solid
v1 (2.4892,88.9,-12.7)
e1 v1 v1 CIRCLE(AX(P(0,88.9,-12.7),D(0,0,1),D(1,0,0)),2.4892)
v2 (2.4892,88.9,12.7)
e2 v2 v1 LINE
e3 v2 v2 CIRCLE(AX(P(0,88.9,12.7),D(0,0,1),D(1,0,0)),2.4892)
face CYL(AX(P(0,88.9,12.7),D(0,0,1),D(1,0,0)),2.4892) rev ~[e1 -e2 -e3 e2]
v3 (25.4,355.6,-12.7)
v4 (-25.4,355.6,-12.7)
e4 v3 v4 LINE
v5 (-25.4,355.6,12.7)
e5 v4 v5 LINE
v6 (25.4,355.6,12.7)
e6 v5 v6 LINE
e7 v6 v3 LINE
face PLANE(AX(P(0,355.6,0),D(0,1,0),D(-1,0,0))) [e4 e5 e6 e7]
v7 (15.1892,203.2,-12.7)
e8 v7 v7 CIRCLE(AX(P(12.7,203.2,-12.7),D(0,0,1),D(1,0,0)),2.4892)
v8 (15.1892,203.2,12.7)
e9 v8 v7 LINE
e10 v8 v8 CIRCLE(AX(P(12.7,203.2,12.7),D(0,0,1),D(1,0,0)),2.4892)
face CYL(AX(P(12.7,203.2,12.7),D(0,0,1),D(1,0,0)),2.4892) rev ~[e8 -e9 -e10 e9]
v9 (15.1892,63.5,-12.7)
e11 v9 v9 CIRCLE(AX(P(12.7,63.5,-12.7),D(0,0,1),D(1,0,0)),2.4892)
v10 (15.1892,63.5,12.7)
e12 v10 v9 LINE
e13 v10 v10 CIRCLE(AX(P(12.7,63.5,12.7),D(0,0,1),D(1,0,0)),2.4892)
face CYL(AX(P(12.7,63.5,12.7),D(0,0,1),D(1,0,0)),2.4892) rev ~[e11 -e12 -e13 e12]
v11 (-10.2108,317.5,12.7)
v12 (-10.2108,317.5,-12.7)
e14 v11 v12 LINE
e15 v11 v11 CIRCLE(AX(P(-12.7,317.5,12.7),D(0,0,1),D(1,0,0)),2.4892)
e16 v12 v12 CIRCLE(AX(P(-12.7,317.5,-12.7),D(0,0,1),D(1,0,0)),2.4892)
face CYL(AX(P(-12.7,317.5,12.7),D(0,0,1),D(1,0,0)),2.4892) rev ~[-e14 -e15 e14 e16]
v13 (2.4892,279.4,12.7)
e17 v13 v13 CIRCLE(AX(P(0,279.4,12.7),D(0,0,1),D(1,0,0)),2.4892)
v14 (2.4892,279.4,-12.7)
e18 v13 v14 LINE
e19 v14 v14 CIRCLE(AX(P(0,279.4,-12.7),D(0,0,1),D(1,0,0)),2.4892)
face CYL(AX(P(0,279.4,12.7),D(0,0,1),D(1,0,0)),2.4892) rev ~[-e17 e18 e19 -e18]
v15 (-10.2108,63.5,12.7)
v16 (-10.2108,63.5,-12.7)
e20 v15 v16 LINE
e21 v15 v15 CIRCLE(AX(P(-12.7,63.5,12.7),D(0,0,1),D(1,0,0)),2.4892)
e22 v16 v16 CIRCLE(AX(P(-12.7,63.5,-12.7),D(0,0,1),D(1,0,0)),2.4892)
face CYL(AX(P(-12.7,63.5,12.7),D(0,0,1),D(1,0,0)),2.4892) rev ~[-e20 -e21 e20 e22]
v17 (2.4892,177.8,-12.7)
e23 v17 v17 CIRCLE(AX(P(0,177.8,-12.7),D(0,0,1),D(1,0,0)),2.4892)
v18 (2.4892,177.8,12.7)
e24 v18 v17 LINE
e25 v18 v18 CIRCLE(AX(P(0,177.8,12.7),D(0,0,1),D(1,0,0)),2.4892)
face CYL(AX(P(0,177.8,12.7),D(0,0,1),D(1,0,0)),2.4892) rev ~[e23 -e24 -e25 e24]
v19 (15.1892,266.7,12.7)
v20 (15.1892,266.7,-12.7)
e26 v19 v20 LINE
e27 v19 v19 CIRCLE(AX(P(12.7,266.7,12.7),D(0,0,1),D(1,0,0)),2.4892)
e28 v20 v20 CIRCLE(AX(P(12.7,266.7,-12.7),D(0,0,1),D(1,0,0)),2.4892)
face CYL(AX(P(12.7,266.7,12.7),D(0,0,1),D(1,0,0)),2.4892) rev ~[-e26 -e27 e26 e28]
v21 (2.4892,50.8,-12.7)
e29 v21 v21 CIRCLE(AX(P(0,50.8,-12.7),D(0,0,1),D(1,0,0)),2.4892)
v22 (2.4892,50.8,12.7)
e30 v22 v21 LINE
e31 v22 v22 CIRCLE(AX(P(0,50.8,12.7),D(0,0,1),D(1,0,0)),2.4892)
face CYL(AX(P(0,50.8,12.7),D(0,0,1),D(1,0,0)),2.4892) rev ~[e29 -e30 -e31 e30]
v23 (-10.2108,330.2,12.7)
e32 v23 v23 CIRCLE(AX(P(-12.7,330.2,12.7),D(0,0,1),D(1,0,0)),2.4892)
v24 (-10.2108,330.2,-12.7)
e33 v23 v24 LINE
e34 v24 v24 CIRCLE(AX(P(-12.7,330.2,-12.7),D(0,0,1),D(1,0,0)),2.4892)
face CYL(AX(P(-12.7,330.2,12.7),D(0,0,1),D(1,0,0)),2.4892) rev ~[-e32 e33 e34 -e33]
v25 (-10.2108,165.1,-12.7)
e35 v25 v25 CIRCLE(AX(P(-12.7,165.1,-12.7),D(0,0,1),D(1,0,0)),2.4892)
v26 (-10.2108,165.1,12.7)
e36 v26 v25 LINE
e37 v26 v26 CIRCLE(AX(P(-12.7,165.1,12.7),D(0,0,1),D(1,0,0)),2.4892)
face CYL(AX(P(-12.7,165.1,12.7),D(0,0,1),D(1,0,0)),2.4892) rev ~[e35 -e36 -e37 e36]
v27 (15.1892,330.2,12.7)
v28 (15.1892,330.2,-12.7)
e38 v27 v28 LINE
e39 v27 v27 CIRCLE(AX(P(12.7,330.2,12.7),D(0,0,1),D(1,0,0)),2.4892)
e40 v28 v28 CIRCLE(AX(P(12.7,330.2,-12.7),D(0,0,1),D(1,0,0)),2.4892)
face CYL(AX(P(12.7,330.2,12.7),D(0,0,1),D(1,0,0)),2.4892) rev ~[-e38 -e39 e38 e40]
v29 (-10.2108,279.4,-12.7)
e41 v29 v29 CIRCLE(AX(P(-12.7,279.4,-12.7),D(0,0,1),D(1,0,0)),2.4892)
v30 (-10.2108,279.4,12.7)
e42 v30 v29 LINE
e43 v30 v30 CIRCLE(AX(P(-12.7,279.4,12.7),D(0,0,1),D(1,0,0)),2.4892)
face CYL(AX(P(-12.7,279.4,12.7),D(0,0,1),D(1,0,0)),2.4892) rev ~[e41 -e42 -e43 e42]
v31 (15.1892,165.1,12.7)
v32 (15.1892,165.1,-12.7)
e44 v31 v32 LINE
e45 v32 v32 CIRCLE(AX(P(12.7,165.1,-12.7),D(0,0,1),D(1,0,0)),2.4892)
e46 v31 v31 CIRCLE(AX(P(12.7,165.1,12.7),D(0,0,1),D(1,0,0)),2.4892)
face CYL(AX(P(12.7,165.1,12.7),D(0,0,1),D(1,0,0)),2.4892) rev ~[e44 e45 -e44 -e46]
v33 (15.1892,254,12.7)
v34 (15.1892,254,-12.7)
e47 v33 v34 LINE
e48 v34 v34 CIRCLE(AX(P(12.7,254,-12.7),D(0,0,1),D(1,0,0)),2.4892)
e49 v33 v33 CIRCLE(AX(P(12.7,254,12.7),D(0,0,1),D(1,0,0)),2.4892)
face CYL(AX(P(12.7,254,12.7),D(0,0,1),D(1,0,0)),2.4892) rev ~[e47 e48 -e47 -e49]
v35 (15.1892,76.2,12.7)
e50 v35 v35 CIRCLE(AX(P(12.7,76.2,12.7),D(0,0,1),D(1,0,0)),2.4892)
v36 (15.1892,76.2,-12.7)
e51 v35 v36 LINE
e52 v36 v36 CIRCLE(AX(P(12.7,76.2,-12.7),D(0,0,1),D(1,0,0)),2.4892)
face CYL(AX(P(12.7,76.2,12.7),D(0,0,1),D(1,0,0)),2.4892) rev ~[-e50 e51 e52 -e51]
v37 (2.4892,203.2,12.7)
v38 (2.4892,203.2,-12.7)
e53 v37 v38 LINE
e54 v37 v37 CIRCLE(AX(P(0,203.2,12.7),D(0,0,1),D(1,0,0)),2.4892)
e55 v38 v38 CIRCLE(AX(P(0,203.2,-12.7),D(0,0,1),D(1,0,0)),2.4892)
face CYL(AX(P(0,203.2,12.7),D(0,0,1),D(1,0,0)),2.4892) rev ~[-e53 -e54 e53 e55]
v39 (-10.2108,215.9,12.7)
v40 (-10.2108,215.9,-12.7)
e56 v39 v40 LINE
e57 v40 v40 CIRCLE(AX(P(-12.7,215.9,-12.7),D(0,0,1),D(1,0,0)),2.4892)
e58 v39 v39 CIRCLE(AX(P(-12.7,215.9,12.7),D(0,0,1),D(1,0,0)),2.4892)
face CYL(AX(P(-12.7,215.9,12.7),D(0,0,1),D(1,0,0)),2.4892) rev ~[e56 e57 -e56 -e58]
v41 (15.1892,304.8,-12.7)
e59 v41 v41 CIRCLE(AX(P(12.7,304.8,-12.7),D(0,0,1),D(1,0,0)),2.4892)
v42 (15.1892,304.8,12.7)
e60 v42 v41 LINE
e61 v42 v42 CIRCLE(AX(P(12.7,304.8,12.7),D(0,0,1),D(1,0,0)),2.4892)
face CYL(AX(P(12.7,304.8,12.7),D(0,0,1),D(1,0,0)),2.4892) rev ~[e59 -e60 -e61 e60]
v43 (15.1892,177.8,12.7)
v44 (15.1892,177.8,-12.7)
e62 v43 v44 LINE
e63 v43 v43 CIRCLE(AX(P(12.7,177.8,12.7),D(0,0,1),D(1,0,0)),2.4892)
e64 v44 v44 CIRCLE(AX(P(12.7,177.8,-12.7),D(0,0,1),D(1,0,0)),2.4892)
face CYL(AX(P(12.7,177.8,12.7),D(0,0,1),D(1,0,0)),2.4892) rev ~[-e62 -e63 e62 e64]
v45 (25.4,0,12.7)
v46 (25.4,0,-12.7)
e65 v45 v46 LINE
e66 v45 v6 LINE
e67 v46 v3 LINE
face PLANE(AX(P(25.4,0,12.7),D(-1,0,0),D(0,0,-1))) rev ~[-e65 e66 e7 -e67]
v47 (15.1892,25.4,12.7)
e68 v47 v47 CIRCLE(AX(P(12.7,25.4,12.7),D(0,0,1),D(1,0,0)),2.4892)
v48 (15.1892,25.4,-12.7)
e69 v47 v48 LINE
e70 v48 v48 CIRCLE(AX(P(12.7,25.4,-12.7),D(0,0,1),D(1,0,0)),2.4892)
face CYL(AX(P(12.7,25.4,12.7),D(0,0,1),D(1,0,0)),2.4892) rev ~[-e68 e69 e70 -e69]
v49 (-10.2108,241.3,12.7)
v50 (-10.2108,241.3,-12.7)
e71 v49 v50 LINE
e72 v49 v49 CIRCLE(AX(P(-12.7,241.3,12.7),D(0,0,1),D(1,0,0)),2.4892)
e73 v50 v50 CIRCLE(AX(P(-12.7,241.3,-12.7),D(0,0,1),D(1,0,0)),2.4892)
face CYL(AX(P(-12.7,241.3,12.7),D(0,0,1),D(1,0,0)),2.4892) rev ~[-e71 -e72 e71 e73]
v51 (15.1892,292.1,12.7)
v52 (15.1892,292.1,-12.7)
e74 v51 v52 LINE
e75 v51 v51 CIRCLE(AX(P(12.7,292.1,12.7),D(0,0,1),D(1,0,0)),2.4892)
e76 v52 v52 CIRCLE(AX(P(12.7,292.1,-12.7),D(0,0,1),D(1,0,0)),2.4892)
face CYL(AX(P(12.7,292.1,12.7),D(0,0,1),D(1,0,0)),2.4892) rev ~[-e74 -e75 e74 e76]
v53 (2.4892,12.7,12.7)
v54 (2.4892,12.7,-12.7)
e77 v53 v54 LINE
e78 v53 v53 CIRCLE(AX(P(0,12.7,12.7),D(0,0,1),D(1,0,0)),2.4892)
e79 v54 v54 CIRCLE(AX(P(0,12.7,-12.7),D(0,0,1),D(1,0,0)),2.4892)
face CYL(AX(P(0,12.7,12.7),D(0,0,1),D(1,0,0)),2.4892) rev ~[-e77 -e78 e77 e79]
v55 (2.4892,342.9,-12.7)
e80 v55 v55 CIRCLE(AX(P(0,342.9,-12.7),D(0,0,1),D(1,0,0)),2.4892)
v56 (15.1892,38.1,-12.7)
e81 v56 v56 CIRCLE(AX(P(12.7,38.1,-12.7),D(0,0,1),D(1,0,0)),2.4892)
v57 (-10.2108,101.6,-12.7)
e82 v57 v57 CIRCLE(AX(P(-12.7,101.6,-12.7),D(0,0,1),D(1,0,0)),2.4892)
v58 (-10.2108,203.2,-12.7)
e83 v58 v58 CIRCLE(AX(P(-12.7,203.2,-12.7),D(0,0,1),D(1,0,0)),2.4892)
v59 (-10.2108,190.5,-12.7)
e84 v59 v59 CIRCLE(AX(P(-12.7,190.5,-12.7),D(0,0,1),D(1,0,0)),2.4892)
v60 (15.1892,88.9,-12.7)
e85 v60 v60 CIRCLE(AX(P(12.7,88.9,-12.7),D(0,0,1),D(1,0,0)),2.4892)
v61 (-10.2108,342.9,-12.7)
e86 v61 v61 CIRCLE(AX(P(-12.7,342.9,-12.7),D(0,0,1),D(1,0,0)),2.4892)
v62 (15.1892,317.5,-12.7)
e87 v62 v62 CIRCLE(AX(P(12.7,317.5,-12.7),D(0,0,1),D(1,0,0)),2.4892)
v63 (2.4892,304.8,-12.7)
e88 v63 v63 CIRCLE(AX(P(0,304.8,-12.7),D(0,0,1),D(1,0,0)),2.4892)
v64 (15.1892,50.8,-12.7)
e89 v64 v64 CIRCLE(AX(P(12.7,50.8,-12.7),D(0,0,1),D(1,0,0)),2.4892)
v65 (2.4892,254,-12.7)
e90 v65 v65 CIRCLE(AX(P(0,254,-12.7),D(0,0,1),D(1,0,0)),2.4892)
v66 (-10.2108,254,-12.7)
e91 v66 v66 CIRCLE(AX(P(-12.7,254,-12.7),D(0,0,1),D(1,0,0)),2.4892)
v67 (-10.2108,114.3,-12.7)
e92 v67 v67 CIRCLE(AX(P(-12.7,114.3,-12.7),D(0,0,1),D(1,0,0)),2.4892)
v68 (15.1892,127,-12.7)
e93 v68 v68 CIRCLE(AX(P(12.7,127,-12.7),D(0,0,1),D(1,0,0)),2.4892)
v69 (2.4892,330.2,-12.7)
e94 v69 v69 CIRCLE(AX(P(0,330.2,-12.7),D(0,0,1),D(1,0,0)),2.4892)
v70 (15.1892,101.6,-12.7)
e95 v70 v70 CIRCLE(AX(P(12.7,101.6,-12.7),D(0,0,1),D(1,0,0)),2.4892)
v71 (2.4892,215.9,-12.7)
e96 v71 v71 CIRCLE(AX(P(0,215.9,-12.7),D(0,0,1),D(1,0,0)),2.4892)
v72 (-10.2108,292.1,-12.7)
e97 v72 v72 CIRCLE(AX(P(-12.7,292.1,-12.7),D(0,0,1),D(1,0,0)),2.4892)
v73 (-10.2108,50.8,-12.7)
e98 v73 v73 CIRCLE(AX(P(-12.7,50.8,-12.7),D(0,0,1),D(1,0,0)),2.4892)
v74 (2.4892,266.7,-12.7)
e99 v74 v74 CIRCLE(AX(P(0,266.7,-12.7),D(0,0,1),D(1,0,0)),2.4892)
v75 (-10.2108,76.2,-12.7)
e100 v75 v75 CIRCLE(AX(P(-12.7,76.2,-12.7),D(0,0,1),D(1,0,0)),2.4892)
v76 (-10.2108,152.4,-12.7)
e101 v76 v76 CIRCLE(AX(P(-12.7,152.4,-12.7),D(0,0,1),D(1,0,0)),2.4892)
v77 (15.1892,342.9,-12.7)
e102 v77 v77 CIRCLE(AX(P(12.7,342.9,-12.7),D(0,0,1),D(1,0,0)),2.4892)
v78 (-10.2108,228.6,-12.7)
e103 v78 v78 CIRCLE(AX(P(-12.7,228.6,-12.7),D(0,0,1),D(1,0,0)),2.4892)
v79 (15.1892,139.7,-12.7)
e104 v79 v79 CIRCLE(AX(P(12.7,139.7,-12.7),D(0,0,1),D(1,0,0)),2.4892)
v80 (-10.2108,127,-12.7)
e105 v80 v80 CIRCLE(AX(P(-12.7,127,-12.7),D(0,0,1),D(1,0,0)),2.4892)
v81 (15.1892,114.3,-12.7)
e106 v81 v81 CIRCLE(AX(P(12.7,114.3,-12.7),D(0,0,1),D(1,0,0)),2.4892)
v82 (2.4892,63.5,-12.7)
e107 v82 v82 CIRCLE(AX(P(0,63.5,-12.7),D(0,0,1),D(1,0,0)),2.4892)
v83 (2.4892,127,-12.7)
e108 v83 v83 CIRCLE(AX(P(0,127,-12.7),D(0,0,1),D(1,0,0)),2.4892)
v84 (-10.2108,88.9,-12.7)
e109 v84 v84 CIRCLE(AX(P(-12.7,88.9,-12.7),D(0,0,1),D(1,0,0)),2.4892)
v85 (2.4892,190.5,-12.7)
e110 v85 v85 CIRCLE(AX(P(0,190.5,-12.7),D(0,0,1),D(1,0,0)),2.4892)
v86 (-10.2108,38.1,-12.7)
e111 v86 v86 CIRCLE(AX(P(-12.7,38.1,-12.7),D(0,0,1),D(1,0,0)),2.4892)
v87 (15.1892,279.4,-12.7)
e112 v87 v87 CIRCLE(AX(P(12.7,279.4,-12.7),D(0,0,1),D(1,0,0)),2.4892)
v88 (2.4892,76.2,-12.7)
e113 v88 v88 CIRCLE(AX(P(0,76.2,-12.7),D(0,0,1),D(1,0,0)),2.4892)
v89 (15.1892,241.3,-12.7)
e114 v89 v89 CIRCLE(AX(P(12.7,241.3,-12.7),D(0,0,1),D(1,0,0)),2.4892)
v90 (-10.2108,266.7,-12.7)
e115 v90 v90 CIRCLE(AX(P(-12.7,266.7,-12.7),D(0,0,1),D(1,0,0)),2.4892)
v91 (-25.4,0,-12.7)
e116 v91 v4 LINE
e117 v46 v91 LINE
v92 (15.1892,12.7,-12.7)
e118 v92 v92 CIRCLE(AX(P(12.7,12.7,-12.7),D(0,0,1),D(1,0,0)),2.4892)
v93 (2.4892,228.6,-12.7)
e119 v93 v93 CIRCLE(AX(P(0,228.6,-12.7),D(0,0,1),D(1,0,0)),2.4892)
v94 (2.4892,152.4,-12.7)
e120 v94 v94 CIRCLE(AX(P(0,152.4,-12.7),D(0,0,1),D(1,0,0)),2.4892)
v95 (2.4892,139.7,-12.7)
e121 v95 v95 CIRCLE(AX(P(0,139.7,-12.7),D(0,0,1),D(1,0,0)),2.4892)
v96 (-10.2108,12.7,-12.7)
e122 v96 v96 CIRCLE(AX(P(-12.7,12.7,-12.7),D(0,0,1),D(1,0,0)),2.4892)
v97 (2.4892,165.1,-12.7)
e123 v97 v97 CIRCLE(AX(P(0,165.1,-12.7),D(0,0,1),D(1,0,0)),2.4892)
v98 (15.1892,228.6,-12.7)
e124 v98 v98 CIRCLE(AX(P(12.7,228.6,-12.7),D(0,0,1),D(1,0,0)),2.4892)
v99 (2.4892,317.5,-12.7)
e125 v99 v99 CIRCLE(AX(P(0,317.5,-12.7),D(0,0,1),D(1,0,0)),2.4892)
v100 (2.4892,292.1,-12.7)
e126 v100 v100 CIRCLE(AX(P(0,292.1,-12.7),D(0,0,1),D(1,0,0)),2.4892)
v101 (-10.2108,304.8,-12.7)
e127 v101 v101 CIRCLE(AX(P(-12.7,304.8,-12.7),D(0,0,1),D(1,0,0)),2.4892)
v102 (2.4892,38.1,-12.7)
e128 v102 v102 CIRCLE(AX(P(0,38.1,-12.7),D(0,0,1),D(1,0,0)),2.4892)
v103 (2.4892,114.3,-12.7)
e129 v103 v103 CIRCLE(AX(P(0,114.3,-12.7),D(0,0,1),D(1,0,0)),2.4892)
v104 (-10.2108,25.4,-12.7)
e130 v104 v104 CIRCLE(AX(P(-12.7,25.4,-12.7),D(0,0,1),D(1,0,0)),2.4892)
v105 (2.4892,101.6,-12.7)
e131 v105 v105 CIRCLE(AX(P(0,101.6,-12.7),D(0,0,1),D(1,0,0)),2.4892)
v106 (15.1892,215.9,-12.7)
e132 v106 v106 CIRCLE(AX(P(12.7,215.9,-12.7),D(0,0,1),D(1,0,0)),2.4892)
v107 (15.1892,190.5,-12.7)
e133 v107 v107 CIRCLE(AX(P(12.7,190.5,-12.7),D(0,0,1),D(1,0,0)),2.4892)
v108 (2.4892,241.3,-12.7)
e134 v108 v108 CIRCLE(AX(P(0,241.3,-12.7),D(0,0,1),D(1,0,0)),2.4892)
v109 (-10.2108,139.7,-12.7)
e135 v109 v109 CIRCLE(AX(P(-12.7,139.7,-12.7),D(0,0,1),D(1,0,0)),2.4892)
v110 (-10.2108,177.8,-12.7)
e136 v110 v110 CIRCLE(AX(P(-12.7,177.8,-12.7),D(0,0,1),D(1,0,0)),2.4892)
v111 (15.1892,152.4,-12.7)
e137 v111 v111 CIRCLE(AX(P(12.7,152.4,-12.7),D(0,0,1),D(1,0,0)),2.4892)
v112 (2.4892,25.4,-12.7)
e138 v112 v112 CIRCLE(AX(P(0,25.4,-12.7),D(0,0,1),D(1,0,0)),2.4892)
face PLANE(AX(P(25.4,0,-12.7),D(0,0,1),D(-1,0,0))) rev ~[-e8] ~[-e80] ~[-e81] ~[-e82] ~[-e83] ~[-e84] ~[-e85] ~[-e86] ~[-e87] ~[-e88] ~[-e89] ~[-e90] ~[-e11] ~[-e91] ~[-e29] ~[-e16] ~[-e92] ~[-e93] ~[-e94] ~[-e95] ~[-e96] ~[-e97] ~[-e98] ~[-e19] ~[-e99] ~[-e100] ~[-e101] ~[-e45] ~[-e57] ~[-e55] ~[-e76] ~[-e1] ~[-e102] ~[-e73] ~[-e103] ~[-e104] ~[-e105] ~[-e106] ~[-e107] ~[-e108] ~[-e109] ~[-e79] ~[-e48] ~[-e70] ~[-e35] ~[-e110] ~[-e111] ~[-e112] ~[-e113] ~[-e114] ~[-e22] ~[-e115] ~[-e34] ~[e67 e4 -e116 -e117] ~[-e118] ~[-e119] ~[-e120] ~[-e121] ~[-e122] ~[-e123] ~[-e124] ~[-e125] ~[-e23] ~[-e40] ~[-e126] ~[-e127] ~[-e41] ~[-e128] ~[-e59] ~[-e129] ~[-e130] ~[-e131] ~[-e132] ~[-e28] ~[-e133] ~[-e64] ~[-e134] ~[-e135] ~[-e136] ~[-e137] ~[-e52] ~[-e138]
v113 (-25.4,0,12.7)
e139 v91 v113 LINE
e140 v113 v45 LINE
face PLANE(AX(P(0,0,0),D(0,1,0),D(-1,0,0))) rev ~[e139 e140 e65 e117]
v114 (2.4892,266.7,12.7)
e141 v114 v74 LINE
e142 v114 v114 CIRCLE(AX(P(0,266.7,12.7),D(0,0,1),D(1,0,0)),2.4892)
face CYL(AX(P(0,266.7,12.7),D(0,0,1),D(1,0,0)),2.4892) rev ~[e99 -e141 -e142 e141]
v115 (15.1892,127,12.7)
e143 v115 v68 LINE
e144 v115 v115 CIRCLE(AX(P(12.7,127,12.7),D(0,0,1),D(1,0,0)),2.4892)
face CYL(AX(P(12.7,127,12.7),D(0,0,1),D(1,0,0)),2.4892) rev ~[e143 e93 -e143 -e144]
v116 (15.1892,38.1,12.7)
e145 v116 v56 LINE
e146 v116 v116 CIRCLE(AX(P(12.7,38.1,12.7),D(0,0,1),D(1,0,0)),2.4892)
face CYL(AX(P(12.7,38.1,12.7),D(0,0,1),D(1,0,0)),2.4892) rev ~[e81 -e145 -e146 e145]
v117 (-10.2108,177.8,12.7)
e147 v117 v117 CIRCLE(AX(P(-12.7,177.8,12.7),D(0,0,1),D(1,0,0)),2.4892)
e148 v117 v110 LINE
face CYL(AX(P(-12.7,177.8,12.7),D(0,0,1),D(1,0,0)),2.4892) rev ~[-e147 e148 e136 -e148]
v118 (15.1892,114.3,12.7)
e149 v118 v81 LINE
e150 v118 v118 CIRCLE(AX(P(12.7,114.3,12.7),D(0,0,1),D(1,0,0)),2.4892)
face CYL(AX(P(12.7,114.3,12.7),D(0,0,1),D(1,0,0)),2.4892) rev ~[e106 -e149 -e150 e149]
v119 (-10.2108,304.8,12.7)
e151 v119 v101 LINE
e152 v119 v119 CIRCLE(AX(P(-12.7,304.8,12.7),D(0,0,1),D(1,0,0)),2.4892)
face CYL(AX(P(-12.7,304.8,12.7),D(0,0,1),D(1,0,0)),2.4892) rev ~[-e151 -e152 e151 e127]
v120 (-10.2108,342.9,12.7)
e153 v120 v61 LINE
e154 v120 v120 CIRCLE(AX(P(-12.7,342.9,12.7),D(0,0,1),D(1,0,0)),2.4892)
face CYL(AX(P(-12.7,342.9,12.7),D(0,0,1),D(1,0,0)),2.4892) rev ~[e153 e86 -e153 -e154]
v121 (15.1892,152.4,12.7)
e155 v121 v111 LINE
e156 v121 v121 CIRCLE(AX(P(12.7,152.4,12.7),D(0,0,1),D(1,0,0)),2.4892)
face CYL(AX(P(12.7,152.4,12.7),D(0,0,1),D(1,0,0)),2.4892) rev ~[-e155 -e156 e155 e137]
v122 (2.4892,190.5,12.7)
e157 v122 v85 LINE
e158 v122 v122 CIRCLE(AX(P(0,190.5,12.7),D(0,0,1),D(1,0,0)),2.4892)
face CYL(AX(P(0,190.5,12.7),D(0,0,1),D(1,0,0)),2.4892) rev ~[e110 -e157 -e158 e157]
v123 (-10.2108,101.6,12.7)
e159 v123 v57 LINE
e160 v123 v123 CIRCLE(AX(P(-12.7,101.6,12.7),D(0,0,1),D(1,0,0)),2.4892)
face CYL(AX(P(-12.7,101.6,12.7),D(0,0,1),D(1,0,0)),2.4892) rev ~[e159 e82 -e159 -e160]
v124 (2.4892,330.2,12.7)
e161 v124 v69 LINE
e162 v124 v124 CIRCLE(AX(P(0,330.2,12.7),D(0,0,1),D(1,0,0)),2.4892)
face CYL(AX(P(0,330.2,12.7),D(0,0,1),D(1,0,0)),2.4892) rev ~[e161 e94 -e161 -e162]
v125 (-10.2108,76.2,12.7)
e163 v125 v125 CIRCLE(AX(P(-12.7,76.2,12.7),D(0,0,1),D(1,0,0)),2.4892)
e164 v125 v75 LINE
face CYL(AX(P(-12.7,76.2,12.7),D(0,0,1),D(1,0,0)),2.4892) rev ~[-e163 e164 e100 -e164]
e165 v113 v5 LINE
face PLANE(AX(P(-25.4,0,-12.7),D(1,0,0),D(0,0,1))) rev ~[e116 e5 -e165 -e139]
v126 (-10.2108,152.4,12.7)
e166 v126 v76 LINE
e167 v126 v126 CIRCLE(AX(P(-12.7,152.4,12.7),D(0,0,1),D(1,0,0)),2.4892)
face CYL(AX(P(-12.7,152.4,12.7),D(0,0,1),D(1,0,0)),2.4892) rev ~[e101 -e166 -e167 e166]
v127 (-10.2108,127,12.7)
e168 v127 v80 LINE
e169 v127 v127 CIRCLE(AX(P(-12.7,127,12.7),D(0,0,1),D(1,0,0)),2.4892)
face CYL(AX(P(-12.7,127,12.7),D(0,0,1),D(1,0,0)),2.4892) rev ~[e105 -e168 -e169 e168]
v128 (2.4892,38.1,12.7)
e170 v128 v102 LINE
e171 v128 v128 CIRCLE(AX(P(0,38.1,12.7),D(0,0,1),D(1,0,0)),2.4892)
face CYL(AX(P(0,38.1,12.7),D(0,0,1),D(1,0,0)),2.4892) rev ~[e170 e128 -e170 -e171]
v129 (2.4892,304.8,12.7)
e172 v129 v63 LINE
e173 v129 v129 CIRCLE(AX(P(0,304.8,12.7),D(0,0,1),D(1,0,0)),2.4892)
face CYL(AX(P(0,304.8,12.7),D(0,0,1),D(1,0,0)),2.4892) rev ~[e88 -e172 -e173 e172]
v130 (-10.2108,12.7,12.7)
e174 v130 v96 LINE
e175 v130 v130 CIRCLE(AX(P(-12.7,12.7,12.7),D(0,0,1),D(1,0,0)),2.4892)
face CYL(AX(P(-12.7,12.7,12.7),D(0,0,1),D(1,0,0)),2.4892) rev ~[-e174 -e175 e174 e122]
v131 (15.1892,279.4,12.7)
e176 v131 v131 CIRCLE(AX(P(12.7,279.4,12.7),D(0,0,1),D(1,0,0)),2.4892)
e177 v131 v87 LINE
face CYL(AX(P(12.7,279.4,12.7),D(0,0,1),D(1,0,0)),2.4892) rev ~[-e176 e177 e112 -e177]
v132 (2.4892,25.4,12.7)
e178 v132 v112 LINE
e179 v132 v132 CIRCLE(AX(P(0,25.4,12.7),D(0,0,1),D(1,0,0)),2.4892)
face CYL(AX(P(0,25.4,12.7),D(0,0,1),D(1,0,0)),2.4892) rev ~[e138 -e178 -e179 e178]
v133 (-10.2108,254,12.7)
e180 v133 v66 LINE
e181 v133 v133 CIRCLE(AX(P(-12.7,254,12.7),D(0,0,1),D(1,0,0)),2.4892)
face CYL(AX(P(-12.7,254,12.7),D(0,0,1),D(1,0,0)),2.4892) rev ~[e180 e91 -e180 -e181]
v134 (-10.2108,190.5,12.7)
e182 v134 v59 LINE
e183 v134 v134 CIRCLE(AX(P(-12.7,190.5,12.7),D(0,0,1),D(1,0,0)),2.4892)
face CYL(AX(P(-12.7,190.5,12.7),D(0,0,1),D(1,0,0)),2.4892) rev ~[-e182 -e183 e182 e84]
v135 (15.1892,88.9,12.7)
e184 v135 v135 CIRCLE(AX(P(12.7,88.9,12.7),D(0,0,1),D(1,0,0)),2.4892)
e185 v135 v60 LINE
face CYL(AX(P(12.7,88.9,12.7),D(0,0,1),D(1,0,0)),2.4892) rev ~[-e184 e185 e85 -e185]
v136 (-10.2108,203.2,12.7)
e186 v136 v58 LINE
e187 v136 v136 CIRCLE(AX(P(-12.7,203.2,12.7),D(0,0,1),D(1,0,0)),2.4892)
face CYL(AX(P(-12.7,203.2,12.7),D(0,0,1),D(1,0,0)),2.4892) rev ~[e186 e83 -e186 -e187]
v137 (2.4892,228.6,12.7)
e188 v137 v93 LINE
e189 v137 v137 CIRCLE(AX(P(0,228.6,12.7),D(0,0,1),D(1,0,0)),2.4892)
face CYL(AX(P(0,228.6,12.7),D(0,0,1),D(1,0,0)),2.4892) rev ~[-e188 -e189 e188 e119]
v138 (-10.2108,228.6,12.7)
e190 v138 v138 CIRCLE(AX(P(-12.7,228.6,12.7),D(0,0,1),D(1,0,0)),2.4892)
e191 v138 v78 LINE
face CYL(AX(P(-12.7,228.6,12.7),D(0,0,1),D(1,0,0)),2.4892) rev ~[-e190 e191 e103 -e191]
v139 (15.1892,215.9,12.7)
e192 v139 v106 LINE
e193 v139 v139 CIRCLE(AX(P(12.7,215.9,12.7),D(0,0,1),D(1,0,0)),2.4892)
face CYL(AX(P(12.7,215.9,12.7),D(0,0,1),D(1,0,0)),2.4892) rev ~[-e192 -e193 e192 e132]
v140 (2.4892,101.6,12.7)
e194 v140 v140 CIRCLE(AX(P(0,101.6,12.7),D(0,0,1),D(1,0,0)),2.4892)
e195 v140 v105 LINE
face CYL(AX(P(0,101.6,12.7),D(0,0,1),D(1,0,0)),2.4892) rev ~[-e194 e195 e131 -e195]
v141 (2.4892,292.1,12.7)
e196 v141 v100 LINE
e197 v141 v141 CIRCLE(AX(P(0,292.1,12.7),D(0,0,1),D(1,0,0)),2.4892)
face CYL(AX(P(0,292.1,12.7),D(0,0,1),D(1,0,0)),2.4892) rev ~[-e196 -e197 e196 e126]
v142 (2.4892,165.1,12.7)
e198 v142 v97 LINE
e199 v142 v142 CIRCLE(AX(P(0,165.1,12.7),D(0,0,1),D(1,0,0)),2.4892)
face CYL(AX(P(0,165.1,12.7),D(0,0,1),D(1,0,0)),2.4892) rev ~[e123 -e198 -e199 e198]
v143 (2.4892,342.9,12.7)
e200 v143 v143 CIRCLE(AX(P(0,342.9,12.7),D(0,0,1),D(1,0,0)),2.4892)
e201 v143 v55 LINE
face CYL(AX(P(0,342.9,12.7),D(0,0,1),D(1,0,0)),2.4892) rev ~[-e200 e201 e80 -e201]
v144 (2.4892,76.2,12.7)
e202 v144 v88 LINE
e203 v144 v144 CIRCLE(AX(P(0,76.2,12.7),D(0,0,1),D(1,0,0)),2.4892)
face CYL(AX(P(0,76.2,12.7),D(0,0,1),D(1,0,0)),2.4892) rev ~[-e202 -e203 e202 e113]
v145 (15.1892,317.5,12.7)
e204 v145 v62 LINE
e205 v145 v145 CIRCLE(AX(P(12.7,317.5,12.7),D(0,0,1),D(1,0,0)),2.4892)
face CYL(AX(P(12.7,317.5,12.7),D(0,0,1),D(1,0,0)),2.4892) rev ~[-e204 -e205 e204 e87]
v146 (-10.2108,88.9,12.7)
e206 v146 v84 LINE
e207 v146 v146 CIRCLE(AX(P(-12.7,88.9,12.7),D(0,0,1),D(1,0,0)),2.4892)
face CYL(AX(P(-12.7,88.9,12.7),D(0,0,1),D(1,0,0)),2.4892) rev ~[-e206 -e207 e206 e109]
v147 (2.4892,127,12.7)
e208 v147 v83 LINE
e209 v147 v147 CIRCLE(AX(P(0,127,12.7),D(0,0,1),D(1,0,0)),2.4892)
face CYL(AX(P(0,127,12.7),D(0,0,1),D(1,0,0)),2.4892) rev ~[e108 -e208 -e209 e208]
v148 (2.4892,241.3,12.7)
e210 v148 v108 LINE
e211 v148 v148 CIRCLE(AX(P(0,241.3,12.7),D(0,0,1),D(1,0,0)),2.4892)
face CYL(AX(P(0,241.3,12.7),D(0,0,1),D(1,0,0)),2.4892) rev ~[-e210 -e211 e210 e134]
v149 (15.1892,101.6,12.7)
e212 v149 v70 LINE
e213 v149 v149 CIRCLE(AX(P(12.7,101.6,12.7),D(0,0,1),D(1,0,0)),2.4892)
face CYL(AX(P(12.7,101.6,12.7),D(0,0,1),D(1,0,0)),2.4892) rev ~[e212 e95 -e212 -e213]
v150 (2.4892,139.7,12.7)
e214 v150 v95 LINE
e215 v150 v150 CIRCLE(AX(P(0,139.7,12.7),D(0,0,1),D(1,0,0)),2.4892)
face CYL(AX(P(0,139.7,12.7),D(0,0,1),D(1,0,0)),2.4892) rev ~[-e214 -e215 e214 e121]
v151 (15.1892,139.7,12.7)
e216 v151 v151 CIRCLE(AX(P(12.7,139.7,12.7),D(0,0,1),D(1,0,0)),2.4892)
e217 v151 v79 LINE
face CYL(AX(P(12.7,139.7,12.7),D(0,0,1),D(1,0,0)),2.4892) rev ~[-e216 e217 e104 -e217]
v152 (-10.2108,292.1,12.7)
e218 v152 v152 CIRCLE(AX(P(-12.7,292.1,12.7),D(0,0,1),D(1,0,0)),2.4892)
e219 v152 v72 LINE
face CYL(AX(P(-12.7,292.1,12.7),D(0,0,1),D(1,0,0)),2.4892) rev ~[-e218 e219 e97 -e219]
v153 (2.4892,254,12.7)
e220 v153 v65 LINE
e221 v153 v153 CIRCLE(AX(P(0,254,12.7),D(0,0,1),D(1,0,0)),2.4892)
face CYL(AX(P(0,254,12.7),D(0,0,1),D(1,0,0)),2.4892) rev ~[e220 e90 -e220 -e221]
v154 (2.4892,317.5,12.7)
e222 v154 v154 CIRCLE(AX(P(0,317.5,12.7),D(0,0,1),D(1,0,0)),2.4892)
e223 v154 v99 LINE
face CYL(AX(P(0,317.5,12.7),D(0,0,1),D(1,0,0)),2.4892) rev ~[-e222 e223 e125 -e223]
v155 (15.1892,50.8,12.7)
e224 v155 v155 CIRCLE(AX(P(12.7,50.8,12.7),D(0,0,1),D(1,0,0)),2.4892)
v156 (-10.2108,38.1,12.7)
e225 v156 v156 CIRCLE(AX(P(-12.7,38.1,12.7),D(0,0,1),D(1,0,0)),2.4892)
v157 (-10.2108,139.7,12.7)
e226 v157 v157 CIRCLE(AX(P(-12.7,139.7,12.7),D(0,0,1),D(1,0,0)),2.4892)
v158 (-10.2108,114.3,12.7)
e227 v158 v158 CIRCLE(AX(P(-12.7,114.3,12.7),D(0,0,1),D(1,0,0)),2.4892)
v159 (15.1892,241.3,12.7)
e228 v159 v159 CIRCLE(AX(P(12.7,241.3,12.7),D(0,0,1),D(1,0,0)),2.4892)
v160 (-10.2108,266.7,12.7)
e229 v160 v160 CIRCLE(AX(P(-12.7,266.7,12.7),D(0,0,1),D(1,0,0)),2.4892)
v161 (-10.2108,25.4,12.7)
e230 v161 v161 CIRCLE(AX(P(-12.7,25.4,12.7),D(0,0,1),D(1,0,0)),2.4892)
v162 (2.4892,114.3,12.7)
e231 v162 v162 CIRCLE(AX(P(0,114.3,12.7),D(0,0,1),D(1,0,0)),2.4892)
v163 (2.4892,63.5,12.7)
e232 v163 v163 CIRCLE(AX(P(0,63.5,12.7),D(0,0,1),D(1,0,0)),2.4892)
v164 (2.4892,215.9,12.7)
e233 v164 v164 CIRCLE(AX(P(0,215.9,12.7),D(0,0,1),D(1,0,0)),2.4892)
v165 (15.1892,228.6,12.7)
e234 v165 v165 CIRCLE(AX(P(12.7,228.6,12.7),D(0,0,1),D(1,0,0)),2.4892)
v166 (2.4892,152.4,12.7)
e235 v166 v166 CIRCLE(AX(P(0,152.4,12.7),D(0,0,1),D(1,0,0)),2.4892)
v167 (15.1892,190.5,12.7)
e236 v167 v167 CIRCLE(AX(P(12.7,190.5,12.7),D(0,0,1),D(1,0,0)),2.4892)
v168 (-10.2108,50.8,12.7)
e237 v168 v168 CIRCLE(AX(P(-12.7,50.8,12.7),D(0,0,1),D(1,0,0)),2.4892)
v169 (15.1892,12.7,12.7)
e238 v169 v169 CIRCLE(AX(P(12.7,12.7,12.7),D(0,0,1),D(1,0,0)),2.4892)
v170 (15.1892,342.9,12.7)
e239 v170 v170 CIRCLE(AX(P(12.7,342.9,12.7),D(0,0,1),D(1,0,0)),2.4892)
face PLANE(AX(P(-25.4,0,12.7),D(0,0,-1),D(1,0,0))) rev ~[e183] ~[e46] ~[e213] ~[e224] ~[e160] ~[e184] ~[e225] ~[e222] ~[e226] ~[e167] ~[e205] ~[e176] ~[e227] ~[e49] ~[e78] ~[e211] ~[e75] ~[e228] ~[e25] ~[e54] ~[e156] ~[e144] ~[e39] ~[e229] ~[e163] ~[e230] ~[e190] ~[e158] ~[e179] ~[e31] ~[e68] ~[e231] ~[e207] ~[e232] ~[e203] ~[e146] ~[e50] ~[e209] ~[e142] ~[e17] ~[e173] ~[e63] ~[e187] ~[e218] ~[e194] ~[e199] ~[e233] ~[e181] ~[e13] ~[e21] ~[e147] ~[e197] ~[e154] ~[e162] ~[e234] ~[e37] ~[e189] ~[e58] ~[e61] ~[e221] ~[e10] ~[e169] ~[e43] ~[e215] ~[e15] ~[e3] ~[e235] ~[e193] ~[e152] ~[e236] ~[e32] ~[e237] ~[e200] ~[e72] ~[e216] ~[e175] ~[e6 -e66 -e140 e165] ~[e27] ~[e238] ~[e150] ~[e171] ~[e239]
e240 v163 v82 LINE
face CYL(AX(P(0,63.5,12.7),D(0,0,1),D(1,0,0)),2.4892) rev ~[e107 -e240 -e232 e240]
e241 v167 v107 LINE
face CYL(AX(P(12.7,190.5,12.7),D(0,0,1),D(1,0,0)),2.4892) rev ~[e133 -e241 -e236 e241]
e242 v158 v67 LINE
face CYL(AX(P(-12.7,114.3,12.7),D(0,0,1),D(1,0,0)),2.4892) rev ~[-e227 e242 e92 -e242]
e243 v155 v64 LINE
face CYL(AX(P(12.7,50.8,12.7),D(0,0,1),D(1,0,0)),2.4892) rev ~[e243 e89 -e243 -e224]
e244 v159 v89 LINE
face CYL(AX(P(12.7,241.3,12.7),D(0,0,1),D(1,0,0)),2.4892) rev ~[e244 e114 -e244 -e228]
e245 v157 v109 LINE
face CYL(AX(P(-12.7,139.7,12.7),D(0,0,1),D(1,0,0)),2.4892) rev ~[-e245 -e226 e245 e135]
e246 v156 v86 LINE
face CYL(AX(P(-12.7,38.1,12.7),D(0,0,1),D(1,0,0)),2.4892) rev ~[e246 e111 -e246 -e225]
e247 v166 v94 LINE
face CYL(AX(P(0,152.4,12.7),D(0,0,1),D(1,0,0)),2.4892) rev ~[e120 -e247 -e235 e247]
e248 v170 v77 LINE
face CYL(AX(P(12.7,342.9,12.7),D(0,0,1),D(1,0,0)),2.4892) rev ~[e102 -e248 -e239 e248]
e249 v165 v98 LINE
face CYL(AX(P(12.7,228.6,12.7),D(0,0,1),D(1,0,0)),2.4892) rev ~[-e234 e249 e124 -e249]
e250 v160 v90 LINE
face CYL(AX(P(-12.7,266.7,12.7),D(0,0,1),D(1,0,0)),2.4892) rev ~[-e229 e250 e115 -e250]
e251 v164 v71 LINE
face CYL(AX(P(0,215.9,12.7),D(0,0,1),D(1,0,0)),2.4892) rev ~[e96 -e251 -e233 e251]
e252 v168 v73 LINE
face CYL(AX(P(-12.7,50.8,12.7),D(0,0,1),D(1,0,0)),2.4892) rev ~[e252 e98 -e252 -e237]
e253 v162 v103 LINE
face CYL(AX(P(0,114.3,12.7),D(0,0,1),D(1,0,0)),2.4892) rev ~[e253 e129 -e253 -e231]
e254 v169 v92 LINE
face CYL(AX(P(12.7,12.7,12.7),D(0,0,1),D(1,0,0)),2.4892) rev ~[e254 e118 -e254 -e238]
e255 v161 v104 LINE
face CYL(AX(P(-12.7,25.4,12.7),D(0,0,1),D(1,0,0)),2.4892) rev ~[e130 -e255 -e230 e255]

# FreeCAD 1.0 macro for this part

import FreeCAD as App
import Part
import Sketcher
Q = App.Units.Quantity

doc = App.newDocument("Part")
params = doc.addObject("Spreadsheet::Sheet", "Params")
for row, (alias, value) in enumerate([
    ("sketch1_width", "2 in"),
    ("sketch1_height", "1 in"),
    ("pad1_length", "14 in"),
    ("sketch2_diameter", "0.196 in"),
    ("pocket1_length", "14 in"),
], start=1):
    params.set(f"A{row}", alias)
    params.set(f"B{row}", "=" + value)
    params.setAlias(f"B{row}", alias)

body = doc.addObject("PartDesign::Body", "Body")

# Sketch on XZ plane
sketch1 = doc.addObject("Sketcher::SketchObject", "Sketch")
body.addObject(sketch1)
sketch1.AttachmentSupport = (doc.XZ_Plane, [""])
sketch1.MapMode = "FlatFace"
sketch1.addGeometry([
    Part.LineSegment(App.Vector(-25.4, -12.7, 0), App.Vector(-25.4, 12.7, 0)),
    Part.LineSegment(App.Vector(-25.4, 12.7, 0), App.Vector(25.4, 12.7, 0)),
    Part.LineSegment(App.Vector(25.4, 12.7, 0), App.Vector(25.4, -12.7, 0)),
    Part.LineSegment(App.Vector(25.4, -12.7, 0), App.Vector(-25.4, -12.7, 0)),
], False)
sketch1.addConstraint([
    Sketcher.Constraint("Coincident", 0, 2, 1, 1),
    Sketcher.Constraint("Coincident", 1, 2, 2, 1),
    Sketcher.Constraint("Coincident", 2, 2, 3, 1),
    Sketcher.Constraint("Coincident", 3, 2, 0, 1),
    Sketcher.Constraint("Vertical", 0),
    Sketcher.Constraint("Horizontal", 1),
    Sketcher.Constraint("Vertical", 2),
    Sketcher.Constraint("Horizontal", 3),
    Sketcher.Constraint("Symmetric", 0, 2, 2, 2, -1, 1),
    Sketcher.Constraint("DistanceX", 1, 1, 1, 2, Q("2 in")),
    Sketcher.Constraint("DistanceY", 0, 1, 0, 2, Q("1 in")),
])
sketch1.setExpression("Constraints[9]", "Params.sketch1_width")
sketch1.setExpression("Constraints[10]", "Params.sketch1_height")
pad1 = doc.addObject("PartDesign::Pad", "Pad")
body.addObject(pad1)
pad1.Profile = sketch1
pad1.setExpression("Length", "Params.pad1_length")
pad1.Reversed = True

# Sketch on XY plane
sketch2 = doc.addObject("Sketcher::SketchObject", "Sketch001")
body.addObject(sketch2)
sketch2.AttachmentSupport = (doc.XY_Plane, [""])
sketch2.MapMode = "FlatFace"
sketch2.AttachmentOffset = App.Placement(App.Vector(0, 0, 0.5 * 25.4), App.Rotation())
sketch2.addGeometry([
    Part.Circle(App.Vector(-12.7, 12.7, 0), App.Vector(0, 0, 1), 2.4892),  # 0
    Part.Circle(App.Vector(0, 12.7, 0), App.Vector(0, 0, 1), 2.4892),  # 1
    Part.Circle(App.Vector(12.7, 12.7, 0), App.Vector(0, 0, 1), 2.4892),  # 2
    Part.Circle(App.Vector(-12.7, 25.4, 0), App.Vector(0, 0, 1), 2.4892),  # 3
    Part.Circle(App.Vector(0, 25.4, 0), App.Vector(0, 0, 1), 2.4892),  # 4
    Part.Circle(App.Vector(12.7, 25.4, 0), App.Vector(0, 0, 1), 2.4892),  # 5
    Part.Circle(App.Vector(-12.7, 38.1, 0), App.Vector(0, 0, 1), 2.4892),  # 6
    Part.Circle(App.Vector(0, 38.1, 0), App.Vector(0, 0, 1), 2.4892),  # 7
    Part.Circle(App.Vector(12.7, 38.1, 0), App.Vector(0, 0, 1), 2.4892),  # 8
    Part.Circle(App.Vector(-12.7, 50.8, 0), App.Vector(0, 0, 1), 2.4892),  # 9
    Part.Circle(App.Vector(0, 50.8, 0), App.Vector(0, 0, 1), 2.4892),  # 10
    Part.Circle(App.Vector(12.7, 50.8, 0), App.Vector(0, 0, 1), 2.4892),  # 11
    Part.Circle(App.Vector(-12.7, 63.5, 0), App.Vector(0, 0, 1), 2.4892),  # 12
    Part.Circle(App.Vector(0, 63.5, 0), App.Vector(0, 0, 1), 2.4892),  # 13
    Part.Circle(App.Vector(12.7, 63.5, 0), App.Vector(0, 0, 1), 2.4892),  # 14
    Part.Circle(App.Vector(-12.7, 76.2, 0), App.Vector(0, 0, 1), 2.4892),  # 15
    Part.Circle(App.Vector(0, 76.2, 0), App.Vector(0, 0, 1), 2.4892),  # 16
    Part.Circle(App.Vector(12.7, 76.2, 0), App.Vector(0, 0, 1), 2.4892),  # 17
    Part.Circle(App.Vector(-12.7, 88.9, 0), App.Vector(0, 0, 1), 2.4892),  # 18
    Part.Circle(App.Vector(0, 88.9, 0), App.Vector(0, 0, 1), 2.4892),  # 19
    Part.Circle(App.Vector(12.7, 88.9, 0), App.Vector(0, 0, 1), 2.4892),  # 20
    Part.Circle(App.Vector(-12.7, 101.6, 0), App.Vector(0, 0, 1), 2.4892),  # 21
    Part.Circle(App.Vector(0, 101.6, 0), App.Vector(0, 0, 1), 2.4892),  # 22
    Part.Circle(App.Vector(12.7, 101.6, 0), App.Vector(0, 0, 1), 2.4892),  # 23
    Part.Circle(App.Vector(-12.7, 114.3, 0), App.Vector(0, 0, 1), 2.4892),  # 24
    Part.Circle(App.Vector(0, 114.3, 0), App.Vector(0, 0, 1), 2.4892),  # 25
    Part.Circle(App.Vector(12.7, 114.3, 0), App.Vector(0, 0, 1), 2.4892),  # 26
    Part.Circle(App.Vector(-12.7, 127, 0), App.Vector(0, 0, 1), 2.4892),  # 27
    Part.Circle(App.Vector(0, 127, 0), App.Vector(0, 0, 1), 2.4892),  # 28
    Part.Circle(App.Vector(12.7, 127, 0), App.Vector(0, 0, 1), 2.4892),  # 29
    Part.Circle(App.Vector(-12.7, 139.7, 0), App.Vector(0, 0, 1), 2.4892),  # 30
    Part.Circle(App.Vector(0, 139.7, 0), App.Vector(0, 0, 1), 2.4892),  # 31
    Part.Circle(App.Vector(12.7, 139.7, 0), App.Vector(0, 0, 1), 2.4892),  # 32
    Part.Circle(App.Vector(-12.7, 152.4, 0), App.Vector(0, 0, 1), 2.4892),  # 33
    Part.Circle(App.Vector(0, 152.4, 0), App.Vector(0, 0, 1), 2.4892),  # 34
    Part.Circle(App.Vector(12.7, 152.4, 0), App.Vector(0, 0, 1), 2.4892),  # 35
    Part.Circle(App.Vector(-12.7, 165.1, 0), App.Vector(0, 0, 1), 2.4892),  # 36
    Part.Circle(App.Vector(0, 165.1, 0), App.Vector(0, 0, 1), 2.4892),  # 37
    Part.Circle(App.Vector(12.7, 165.1, 0), App.Vector(0, 0, 1), 2.4892),  # 38
    Part.Circle(App.Vector(-12.7, 177.8, 0), App.Vector(0, 0, 1), 2.4892),  # 39
    Part.Circle(App.Vector(0, 177.8, 0), App.Vector(0, 0, 1), 2.4892),  # 40
    Part.Circle(App.Vector(12.7, 177.8, 0), App.Vector(0, 0, 1), 2.4892),  # 41
    Part.Circle(App.Vector(-12.7, 190.5, 0), App.Vector(0, 0, 1), 2.4892),  # 42
    Part.Circle(App.Vector(0, 190.5, 0), App.Vector(0, 0, 1), 2.4892),  # 43
    Part.Circle(App.Vector(12.7, 190.5, 0), App.Vector(0, 0, 1), 2.4892),  # 44
    Part.Circle(App.Vector(-12.7, 203.2, 0), App.Vector(0, 0, 1), 2.4892),  # 45
    Part.Circle(App.Vector(0, 203.2, 0), App.Vector(0, 0, 1), 2.4892),  # 46
    Part.Circle(App.Vector(12.7, 203.2, 0), App.Vector(0, 0, 1), 2.4892),  # 47
    Part.Circle(App.Vector(-12.7, 215.9, 0), App.Vector(0, 0, 1), 2.4892),  # 48
    Part.Circle(App.Vector(0, 215.9, 0), App.Vector(0, 0, 1), 2.4892),  # 49
    Part.Circle(App.Vector(12.7, 215.9, 0), App.Vector(0, 0, 1), 2.4892),  # 50
    Part.Circle(App.Vector(-12.7, 228.6, 0), App.Vector(0, 0, 1), 2.4892),  # 51
    Part.Circle(App.Vector(0, 228.6, 0), App.Vector(0, 0, 1), 2.4892),  # 52
    Part.Circle(App.Vector(12.7, 228.6, 0), App.Vector(0, 0, 1), 2.4892),  # 53
    Part.Circle(App.Vector(-12.7, 241.3, 0), App.Vector(0, 0, 1), 2.4892),  # 54
    Part.Circle(App.Vector(0, 241.3, 0), App.Vector(0, 0, 1), 2.4892),  # 55
    Part.Circle(App.Vector(12.7, 241.3, 0), App.Vector(0, 0, 1), 2.4892),  # 56
    Part.Circle(App.Vector(-12.7, 254, 0), App.Vector(0, 0, 1), 2.4892),  # 57
    Part.Circle(App.Vector(0, 254, 0), App.Vector(0, 0, 1), 2.4892),  # 58
    Part.Circle(App.Vector(12.7, 254, 0), App.Vector(0, 0, 1), 2.4892),  # 59
    Part.Circle(App.Vector(-12.7, 266.7, 0), App.Vector(0, 0, 1), 2.4892),  # 60
    Part.Circle(App.Vector(0, 266.7, 0), App.Vector(0, 0, 1), 2.4892),  # 61
    Part.Circle(App.Vector(12.7, 266.7, 0), App.Vector(0, 0, 1), 2.4892),  # 62
    Part.Circle(App.Vector(-12.7, 279.4, 0), App.Vector(0, 0, 1), 2.4892),  # 63
    Part.Circle(App.Vector(0, 279.4, 0), App.Vector(0, 0, 1), 2.4892),  # 64
    Part.Circle(App.Vector(12.7, 279.4, 0), App.Vector(0, 0, 1), 2.4892),  # 65
    Part.Circle(App.Vector(-12.7, 292.1, 0), App.Vector(0, 0, 1), 2.4892),  # 66
    Part.Circle(App.Vector(0, 292.1, 0), App.Vector(0, 0, 1), 2.4892),  # 67
    Part.Circle(App.Vector(12.7, 292.1, 0), App.Vector(0, 0, 1), 2.4892),  # 68
    Part.Circle(App.Vector(-12.7, 304.8, 0), App.Vector(0, 0, 1), 2.4892),  # 69
    Part.Circle(App.Vector(0, 304.8, 0), App.Vector(0, 0, 1), 2.4892),  # 70
    Part.Circle(App.Vector(12.7, 304.8, 0), App.Vector(0, 0, 1), 2.4892),  # 71
    Part.Circle(App.Vector(-12.7, 317.5, 0), App.Vector(0, 0, 1), 2.4892),  # 72
    Part.Circle(App.Vector(0, 317.5, 0), App.Vector(0, 0, 1), 2.4892),  # 73
    Part.Circle(App.Vector(12.7, 317.5, 0), App.Vector(0, 0, 1), 2.4892),  # 74
    Part.Circle(App.Vector(-12.7, 330.2, 0), App.Vector(0, 0, 1), 2.4892),  # 75
    Part.Circle(App.Vector(0, 330.2, 0), App.Vector(0, 0, 1), 2.4892),  # 76
    Part.Circle(App.Vector(12.7, 330.2, 0), App.Vector(0, 0, 1), 2.4892),  # 77
    Part.Circle(App.Vector(-12.7, 342.9, 0), App.Vector(0, 0, 1), 2.4892),  # 78
    Part.Circle(App.Vector(0, 342.9, 0), App.Vector(0, 0, 1), 2.4892),  # 79
    Part.Circle(App.Vector(12.7, 342.9, 0), App.Vector(0, 0, 1), 2.4892),  # 80
], False)
sketch2.addConstraint([
    Sketcher.Constraint("Equal", 0, 1),
    Sketcher.Constraint("Equal", 1, 2),
    Sketcher.Constraint("Equal", 2, 3),
    Sketcher.Constraint("Equal", 3, 4),
    Sketcher.Constraint("Equal", 4, 5),
    Sketcher.Constraint("Equal", 5, 6),
    Sketcher.Constraint("Equal", 6, 7),
    Sketcher.Constraint("Equal", 7, 8),
    Sketcher.Constraint("Equal", 8, 9),
    Sketcher.Constraint("Equal", 9, 10),
    Sketcher.Constraint("Equal", 10, 11),
    Sketcher.Constraint("Equal", 11, 12),
    Sketcher.Constraint("Equal", 12, 13),
    Sketcher.Constraint("Equal", 13, 14),
    Sketcher.Constraint("Equal", 14, 15),
    Sketcher.Constraint("Equal", 15, 16),
    Sketcher.Constraint("Equal", 16, 17),
    Sketcher.Constraint("Equal", 17, 18),
    Sketcher.Constraint("Equal", 18, 19),
    Sketcher.Constraint("Equal", 19, 20),
    Sketcher.Constraint("Equal", 20, 21),
    Sketcher.Constraint("Equal", 21, 22),
    Sketcher.Constraint("Equal", 22, 23),
    Sketcher.Constraint("Equal", 23, 24),
    Sketcher.Constraint("Equal", 24, 25),
    Sketcher.Constraint("Equal", 25, 26),
    Sketcher.Constraint("Equal", 26, 27),
    Sketcher.Constraint("Equal", 27, 28),
    Sketcher.Constraint("Equal", 28, 29),
    Sketcher.Constraint("Equal", 29, 30),
    Sketcher.Constraint("Equal", 30, 31),
    Sketcher.Constraint("Equal", 31, 32),
    Sketcher.Constraint("Equal", 32, 33),
    Sketcher.Constraint("Equal", 33, 34),
    Sketcher.Constraint("Equal", 34, 35),
    Sketcher.Constraint("Equal", 35, 36),
    Sketcher.Constraint("Equal", 36, 37),
    Sketcher.Constraint("Equal", 37, 38),
    Sketcher.Constraint("Equal", 38, 39),
    Sketcher.Constraint("Equal", 39, 40),
    Sketcher.Constraint("Equal", 40, 41),
    Sketcher.Constraint("Equal", 41, 42),
    Sketcher.Constraint("Equal", 42, 43),
    Sketcher.Constraint("Equal", 43, 44),
    Sketcher.Constraint("Equal", 44, 45),
    Sketcher.Constraint("Equal", 45, 46),
    Sketcher.Constraint("Equal", 46, 47),
    Sketcher.Constraint("Equal", 47, 48),
    Sketcher.Constraint("Equal", 48, 49),
    Sketcher.Constraint("Equal", 49, 50),
    Sketcher.Constraint("Equal", 50, 51),
    Sketcher.Constraint("Equal", 51, 52),
    Sketcher.Constraint("Equal", 52, 53),
    Sketcher.Constraint("Equal", 53, 54),
    Sketcher.Constraint("Equal", 54, 55),
    Sketcher.Constraint("Equal", 55, 56),
    Sketcher.Constraint("Equal", 56, 57),
    Sketcher.Constraint("Equal", 57, 58),
    Sketcher.Constraint("Equal", 58, 59),
    Sketcher.Constraint("Equal", 59, 60),
    Sketcher.Constraint("Equal", 60, 61),
    Sketcher.Constraint("Equal", 61, 62),
    Sketcher.Constraint("Equal", 62, 63),
    Sketcher.Constraint("Equal", 63, 64),
    Sketcher.Constraint("Equal", 64, 65),
    Sketcher.Constraint("Equal", 65, 66),
    Sketcher.Constraint("Equal", 66, 67),
    Sketcher.Constraint("Equal", 67, 68),
    Sketcher.Constraint("Equal", 68, 69),
    Sketcher.Constraint("Equal", 69, 70),
    Sketcher.Constraint("Equal", 70, 71),
    Sketcher.Constraint("Equal", 71, 72),
    Sketcher.Constraint("Equal", 72, 73),
    Sketcher.Constraint("Equal", 73, 74),
    Sketcher.Constraint("Equal", 74, 75),
    Sketcher.Constraint("Equal", 75, 76),
    Sketcher.Constraint("Equal", 76, 77),
    Sketcher.Constraint("Equal", 77, 78),
    Sketcher.Constraint("Equal", 78, 79),
    Sketcher.Constraint("Equal", 79, 80),
    Sketcher.Constraint("Symmetric", 0, 3, 2, 3, -2),
    Sketcher.Constraint("Symmetric", 3, 3, 5, 3, -2),
    Sketcher.Constraint("Symmetric", 6, 3, 8, 3, -2),
    Sketcher.Constraint("Symmetric", 9, 3, 11, 3, -2),
    Sketcher.Constraint("Symmetric", 12, 3, 14, 3, -2),
    Sketcher.Constraint("Symmetric", 15, 3, 17, 3, -2),
    Sketcher.Constraint("Symmetric", 18, 3, 20, 3, -2),
    Sketcher.Constraint("Symmetric", 21, 3, 23, 3, -2),
    Sketcher.Constraint("Symmetric", 24, 3, 26, 3, -2),
    Sketcher.Constraint("Symmetric", 27, 3, 29, 3, -2),
    Sketcher.Constraint("Symmetric", 30, 3, 32, 3, -2),
    Sketcher.Constraint("Symmetric", 33, 3, 35, 3, -2),
    Sketcher.Constraint("Symmetric", 36, 3, 38, 3, -2),
    Sketcher.Constraint("Symmetric", 39, 3, 41, 3, -2),
    Sketcher.Constraint("Symmetric", 42, 3, 44, 3, -2),
    Sketcher.Constraint("Symmetric", 45, 3, 47, 3, -2),
    Sketcher.Constraint("Symmetric", 48, 3, 50, 3, -2),
    Sketcher.Constraint("Symmetric", 51, 3, 53, 3, -2),
    Sketcher.Constraint("Symmetric", 54, 3, 56, 3, -2),
    Sketcher.Constraint("Symmetric", 57, 3, 59, 3, -2),
    Sketcher.Constraint("Symmetric", 60, 3, 62, 3, -2),
    Sketcher.Constraint("Symmetric", 63, 3, 65, 3, -2),
    Sketcher.Constraint("Symmetric", 66, 3, 68, 3, -2),
    Sketcher.Constraint("Symmetric", 69, 3, 71, 3, -2),
    Sketcher.Constraint("Symmetric", 72, 3, 74, 3, -2),
    Sketcher.Constraint("Symmetric", 75, 3, 77, 3, -2),
    Sketcher.Constraint("Symmetric", 78, 3, 80, 3, -2),
    Sketcher.Constraint("PointOnObject", 1, 3, -2),
    Sketcher.Constraint("PointOnObject", 4, 3, -2),
    Sketcher.Constraint("PointOnObject", 7, 3, -2),
    Sketcher.Constraint("PointOnObject", 10, 3, -2),
    Sketcher.Constraint("PointOnObject", 13, 3, -2),
    Sketcher.Constraint("PointOnObject", 16, 3, -2),
    Sketcher.Constraint("PointOnObject", 19, 3, -2),
    Sketcher.Constraint("PointOnObject", 22, 3, -2),
    Sketcher.Constraint("PointOnObject", 25, 3, -2),
    Sketcher.Constraint("PointOnObject", 28, 3, -2),
    Sketcher.Constraint("PointOnObject", 31, 3, -2),
    Sketcher.Constraint("PointOnObject", 34, 3, -2),
    Sketcher.Constraint("PointOnObject", 37, 3, -2),
    Sketcher.Constraint("PointOnObject", 40, 3, -2),
    Sketcher.Constraint("PointOnObject", 43, 3, -2),
    Sketcher.Constraint("PointOnObject", 46, 3, -2),
    Sketcher.Constraint("PointOnObject", 49, 3, -2),
    Sketcher.Constraint("PointOnObject", 52, 3, -2),
    Sketcher.Constraint("PointOnObject", 55, 3, -2),
    Sketcher.Constraint("PointOnObject", 58, 3, -2),
    Sketcher.Constraint("PointOnObject", 61, 3, -2),
    Sketcher.Constraint("PointOnObject", 64, 3, -2),
    Sketcher.Constraint("PointOnObject", 67, 3, -2),
    Sketcher.Constraint("PointOnObject", 70, 3, -2),
    Sketcher.Constraint("PointOnObject", 73, 3, -2),
    Sketcher.Constraint("PointOnObject", 76, 3, -2),
    Sketcher.Constraint("PointOnObject", 79, 3, -2),
    Sketcher.Constraint("Horizontal", 0, 3, 1, 3),
    Sketcher.Constraint("Horizontal", 3, 3, 4, 3),
    Sketcher.Constraint("Horizontal", 6, 3, 7, 3),
    Sketcher.Constraint("Horizontal", 9, 3, 10, 3),
    Sketcher.Constraint("Horizontal", 12, 3, 13, 3),
    Sketcher.Constraint("Horizontal", 15, 3, 16, 3),
    Sketcher.Constraint("Horizontal", 18, 3, 19, 3),
    Sketcher.Constraint("Horizontal", 21, 3, 22, 3),
    Sketcher.Constraint("Horizontal", 24, 3, 25, 3),
    Sketcher.Constraint("Horizontal", 27, 3, 28, 3),
    Sketcher.Constraint("Horizontal", 30, 3, 31, 3),
    Sketcher.Constraint("Horizontal", 33, 3, 34, 3),
    Sketcher.Constraint("Horizontal", 36, 3, 37, 3),
    Sketcher.Constraint("Horizontal", 39, 3, 40, 3),
    Sketcher.Constraint("Horizontal", 42, 3, 43, 3),
    Sketcher.Constraint("Horizontal", 45, 3, 46, 3),
    Sketcher.Constraint("Horizontal", 48, 3, 49, 3),
    Sketcher.Constraint("Horizontal", 51, 3, 52, 3),
    Sketcher.Constraint("Horizontal", 54, 3, 55, 3),
    Sketcher.Constraint("Horizontal", 57, 3, 58, 3),
    Sketcher.Constraint("Horizontal", 60, 3, 61, 3),
    Sketcher.Constraint("Horizontal", 63, 3, 64, 3),
    Sketcher.Constraint("Horizontal", 66, 3, 67, 3),
    Sketcher.Constraint("Horizontal", 69, 3, 70, 3),
    Sketcher.Constraint("Horizontal", 72, 3, 73, 3),
    Sketcher.Constraint("Horizontal", 75, 3, 76, 3),
    Sketcher.Constraint("Horizontal", 78, 3, 79, 3),
    Sketcher.Constraint("Vertical", 0, 3, 3, 3),
    Sketcher.Constraint("Vertical", 3, 3, 6, 3),
    Sketcher.Constraint("Vertical", 6, 3, 9, 3),
    Sketcher.Constraint("Vertical", 9, 3, 12, 3),
    Sketcher.Constraint("Vertical", 12, 3, 15, 3),
    Sketcher.Constraint("Vertical", 15, 3, 18, 3),
    Sketcher.Constraint("Vertical", 18, 3, 21, 3),
    Sketcher.Constraint("Vertical", 21, 3, 24, 3),
    Sketcher.Constraint("Vertical", 24, 3, 27, 3),
    Sketcher.Constraint("Vertical", 27, 3, 30, 3),
    Sketcher.Constraint("Vertical", 30, 3, 33, 3),
    Sketcher.Constraint("Vertical", 33, 3, 36, 3),
    Sketcher.Constraint("Vertical", 36, 3, 39, 3),
    Sketcher.Constraint("Vertical", 39, 3, 42, 3),
    Sketcher.Constraint("Vertical", 42, 3, 45, 3),
    Sketcher.Constraint("Vertical", 45, 3, 48, 3),
    Sketcher.Constraint("Vertical", 48, 3, 51, 3),
    Sketcher.Constraint("Vertical", 51, 3, 54, 3),
    Sketcher.Constraint("Vertical", 54, 3, 57, 3),
    Sketcher.Constraint("Vertical", 57, 3, 60, 3),
    Sketcher.Constraint("Vertical", 60, 3, 63, 3),
    Sketcher.Constraint("Vertical", 63, 3, 66, 3),
    Sketcher.Constraint("Vertical", 66, 3, 69, 3),
    Sketcher.Constraint("Vertical", 69, 3, 72, 3),
    Sketcher.Constraint("Vertical", 72, 3, 75, 3),
    Sketcher.Constraint("Vertical", 75, 3, 78, 3),
    Sketcher.Constraint("Diameter", 0, Q("0.196 in")),
    Sketcher.Constraint("DistanceX", 0, 3, -1, 1, Q("0.5 in")),
    Sketcher.Constraint("DistanceY", -1, 1, 0, 3, Q("0.5 in")),
    Sketcher.Constraint("DistanceY", -1, 1, 3, 3, Q("1 in")),
    Sketcher.Constraint("DistanceY", -1, 1, 9, 3, Q("2 in")),
    Sketcher.Constraint("DistanceY", -1, 1, 15, 3, Q("3 in")),
    Sketcher.Constraint("DistanceY", -1, 1, 21, 3, Q("4 in")),
    Sketcher.Constraint("DistanceY", -1, 1, 27, 3, Q("5 in")),
    Sketcher.Constraint("DistanceY", -1, 1, 33, 3, Q("6 in")),
    Sketcher.Constraint("DistanceY", -1, 1, 39, 3, Q("7 in")),
    Sketcher.Constraint("DistanceY", -1, 1, 45, 3, Q("8 in")),
    Sketcher.Constraint("DistanceY", -1, 1, 51, 3, Q("9 in")),
    Sketcher.Constraint("DistanceY", -1, 1, 57, 3, Q("10 in")),
    Sketcher.Constraint("DistanceY", -1, 1, 63, 3, Q("11 in")),
    Sketcher.Constraint("DistanceY", -1, 1, 69, 3, Q("12 in")),
    Sketcher.Constraint("DistanceY", -1, 1, 75, 3, Q("13 in")),
    Sketcher.Constraint("DistanceY", -1, 1, 6, 3, Q("1.5 in")),
    Sketcher.Constraint("DistanceY", -1, 1, 12, 3, Q("2.5 in")),
    Sketcher.Constraint("DistanceY", -1, 1, 18, 3, Q("3.5 in")),
    Sketcher.Constraint("DistanceY", -1, 1, 24, 3, Q("4.5 in")),
    Sketcher.Constraint("DistanceY", -1, 1, 30, 3, Q("5.5 in")),
    Sketcher.Constraint("DistanceY", -1, 1, 36, 3, Q("6.5 in")),
    Sketcher.Constraint("DistanceY", -1, 1, 42, 3, Q("7.5 in")),
    Sketcher.Constraint("DistanceY", -1, 1, 48, 3, Q("8.5 in")),
    Sketcher.Constraint("DistanceY", -1, 1, 54, 3, Q("9.5 in")),
    Sketcher.Constraint("DistanceY", -1, 1, 60, 3, Q("10.5 in")),
    Sketcher.Constraint("DistanceY", -1, 1, 66, 3, Q("11.5 in")),
    Sketcher.Constraint("DistanceY", -1, 1, 72, 3, Q("12.5 in")),
    Sketcher.Constraint("DistanceY", -1, 1, 78, 3, Q("13.5 in")),
])
sketch2.setExpression("Constraints[187]", "Params.sketch2_diameter")
pocket1 = doc.addObject("PartDesign::Pocket", "Pocket")
body.addObject(pocket1)
pocket1.Profile = sketch2
pocket1.setExpression("Length", "Params.pocket1_length")

doc.recompute()
